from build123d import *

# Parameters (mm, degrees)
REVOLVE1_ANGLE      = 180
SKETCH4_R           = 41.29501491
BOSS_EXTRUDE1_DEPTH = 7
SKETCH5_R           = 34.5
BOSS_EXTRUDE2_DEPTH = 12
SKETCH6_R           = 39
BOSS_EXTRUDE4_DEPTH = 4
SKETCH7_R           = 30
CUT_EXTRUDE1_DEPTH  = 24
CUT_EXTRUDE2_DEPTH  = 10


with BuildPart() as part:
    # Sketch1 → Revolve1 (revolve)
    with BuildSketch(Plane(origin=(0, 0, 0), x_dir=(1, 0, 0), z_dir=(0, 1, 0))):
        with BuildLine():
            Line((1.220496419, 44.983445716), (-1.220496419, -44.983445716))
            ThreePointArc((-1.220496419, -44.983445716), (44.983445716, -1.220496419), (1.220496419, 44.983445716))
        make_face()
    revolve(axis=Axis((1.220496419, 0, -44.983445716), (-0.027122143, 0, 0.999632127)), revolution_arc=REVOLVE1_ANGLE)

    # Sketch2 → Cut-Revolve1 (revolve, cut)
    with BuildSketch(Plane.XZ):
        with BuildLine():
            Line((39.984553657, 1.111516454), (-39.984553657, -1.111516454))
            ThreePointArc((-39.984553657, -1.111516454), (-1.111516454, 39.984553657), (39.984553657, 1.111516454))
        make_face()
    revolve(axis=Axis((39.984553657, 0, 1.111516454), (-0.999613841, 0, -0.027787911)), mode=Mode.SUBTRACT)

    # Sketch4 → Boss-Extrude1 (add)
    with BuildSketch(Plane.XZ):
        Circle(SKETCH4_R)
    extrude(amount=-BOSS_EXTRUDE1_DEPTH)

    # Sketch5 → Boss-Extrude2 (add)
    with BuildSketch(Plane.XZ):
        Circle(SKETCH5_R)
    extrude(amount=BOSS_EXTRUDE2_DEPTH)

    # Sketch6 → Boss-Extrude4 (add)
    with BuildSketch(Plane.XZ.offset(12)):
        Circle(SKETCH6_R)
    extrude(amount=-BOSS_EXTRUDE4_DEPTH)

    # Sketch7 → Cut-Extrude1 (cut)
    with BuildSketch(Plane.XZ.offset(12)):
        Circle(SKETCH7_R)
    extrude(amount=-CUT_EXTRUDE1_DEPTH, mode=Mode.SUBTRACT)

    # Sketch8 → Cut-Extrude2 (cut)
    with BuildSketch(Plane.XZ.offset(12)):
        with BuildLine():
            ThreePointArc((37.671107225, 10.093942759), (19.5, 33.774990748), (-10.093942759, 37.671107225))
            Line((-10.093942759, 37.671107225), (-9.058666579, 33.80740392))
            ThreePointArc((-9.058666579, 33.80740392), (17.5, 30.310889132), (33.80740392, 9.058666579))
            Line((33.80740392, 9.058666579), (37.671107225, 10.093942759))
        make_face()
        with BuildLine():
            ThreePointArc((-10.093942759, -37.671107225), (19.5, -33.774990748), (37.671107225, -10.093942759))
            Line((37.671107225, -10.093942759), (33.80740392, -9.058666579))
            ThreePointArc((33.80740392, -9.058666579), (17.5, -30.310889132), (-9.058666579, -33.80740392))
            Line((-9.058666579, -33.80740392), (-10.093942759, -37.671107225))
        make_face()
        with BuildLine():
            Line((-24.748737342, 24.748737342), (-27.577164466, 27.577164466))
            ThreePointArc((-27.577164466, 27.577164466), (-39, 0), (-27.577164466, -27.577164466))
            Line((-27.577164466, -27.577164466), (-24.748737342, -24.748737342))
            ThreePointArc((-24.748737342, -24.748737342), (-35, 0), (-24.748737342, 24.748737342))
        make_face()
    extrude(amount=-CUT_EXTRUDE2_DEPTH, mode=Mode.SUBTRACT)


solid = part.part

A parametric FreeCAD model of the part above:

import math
import FreeCAD as App
import Part
import Sketcher
Q = App.Units.Quantity

doc = App.newDocument("Part")
body = doc.addObject("PartDesign::Body", "Body")

sketch1 = body.newObject("Sketcher::SketchObject", "Sketch")
sketch1.AttachmentSupport = (doc.getObject("XZ_Plane"), [""])
sketch1.MapMode = "FlatFace"
sketch1.addGeometry(Part.LineSegment(App.Vector(1, -45, 0), App.Vector(-1, 45, 0)), False)
sketch1.addGeometry(Part.ArcOfCircle(Part.Circle(App.Vector(0, 0, 0), App.Vector(0, 0, 1), 45), math.radians(-88), math.radians(92)), False)
sketch1.addGeometry(Part.LineSegment(App.Vector(1, -45, 0), App.Vector(-1, 45, 0)), True)
sketch1.addConstraint(Sketcher.Constraint("Coincident", 0, 1, 1, 1))
sketch1.addConstraint(Sketcher.Constraint("Coincident", 1, 2, 0, 2))
sketch1.addConstraint(Sketcher.Constraint("Coincident", 1, 3, -1, 1))
sketch1.addConstraint(Sketcher.Constraint("Coincident", 2, 1, 0, 1))
sketch1.addConstraint(Sketcher.Constraint("Coincident", 2, 2, 1, 2))
sketch1.addConstraint(Sketcher.Constraint("Radius", 1, Q("45 mm")))
sketch1.addConstraint(Sketcher.Constraint("DistanceY", 0, 1, 1, 2, Q("89.966891 mm")))
sketch1.addConstraint(Sketcher.Constraint("DistanceX", -1, 1, 0, 1, Q("1.220496 mm")))
revolution = body.newObject("PartDesign::Revolution", "Revolution")
revolution.Profile = sketch1
revolution.ReferenceAxis = (sketch1, ["Axis0"])
revolution.Angle = 180

sketch2 = body.newObject("Sketcher::SketchObject", "Sketch001")
sketch2.AttachmentSupport = (doc.getObject("XZ_Plane"), [""])
sketch2.MapMode = "FlatFace"
sketch2.addGeometry(Part.LineSegment(App.Vector(-40, -1, 0), App.Vector(40, 1, 0)), False)
sketch2.addGeometry(Part.ArcOfCircle(Part.Circle(App.Vector(0, 0, 0), App.Vector(0, 0, 1), 40), math.radians(2), math.radians(182)), False)
sketch2.addGeometry(Part.LineSegment(App.Vector(40, 1, 0), App.Vector(-40, -1, 0)), True)
sketch2.addConstraint(Sketcher.Constraint("Coincident", 0, 1, 1, 2))
sketch2.addConstraint(Sketcher.Constraint("Coincident", 1, 1, 0, 2))
sketch2.addConstraint(Sketcher.Constraint("Coincident", 1, 3, -1, 1))
sketch2.addConstraint(Sketcher.Constraint("Coincident", 2, 1, 1, 1))
sketch2.addConstraint(Sketcher.Constraint("Coincident", 2, 2, 0, 1))
sketch2.addConstraint(Sketcher.Constraint("Radius", 1, Q("40 mm")))
sketch2.addConstraint(Sketcher.Constraint("DistanceX", 0, 1, -1, 1, Q("39.984554 mm")))
sketch2.addConstraint(Sketcher.Constraint("DistanceX", -1, 1, 1, 1, Q("39.984554 mm")))
groove = body.newObject("PartDesign::Groove", "Groove")
groove.Profile = sketch2
groove.ReferenceAxis = (sketch2, ["Axis0"])
groove.Angle = 360

sketch3 = body.newObject("Sketcher::SketchObject", "Sketch002")
sketch3.AttachmentSupport = (doc.getObject("XZ_Plane"), [""])
sketch3.MapMode = "FlatFace"
sketch3.addGeometry(Part.Circle(App.Vector(0, 0, 0), App.Vector(0, 0, 1), 41), False)
sketch3.addConstraint(Sketcher.Constraint("Coincident", 0, 3, -1, 1))
sketch3.addConstraint(Sketcher.Constraint("Diameter", 0, Q("82.59003 mm")))
pad1 = body.newObject("PartDesign::Pad", "Pad")
pad1.Profile = sketch3
pad1.Length = 7
pad1.Reversed = True

sketch4 = body.newObject("Sketcher::SketchObject", "Sketch003")
sketch4.AttachmentSupport = (doc.getObject("XZ_Plane"), [""])
sketch4.MapMode = "FlatFace"
sketch4.addGeometry(Part.Circle(App.Vector(0, 0, 0), App.Vector(0, 0, 1), 34), False)
sketch4.addConstraint(Sketcher.Constraint("Coincident", 0, 3, -1, 1))
sketch4.addConstraint(Sketcher.Constraint("Diameter", 0, Q("69 mm")))
pad2 = body.newObject("PartDesign::Pad", "Pad001")
pad2.Profile = sketch4
pad2.Length = 12

sketch5 = body.newObject("Sketcher::SketchObject", "Sketch004")
sketch5.AttachmentSupport = (doc.getObject("XZ_Plane"), [""])
sketch5.MapMode = "FlatFace"
sketch5.AttachmentOffset = App.Placement(App.Vector(0, 0, 12), App.Rotation())
sketch5.addGeometry(Part.Circle(App.Vector(0, 0, 0), App.Vector(0, 0, 1), 39), False)
sketch5.addConstraint(Sketcher.Constraint("Coincident", 0, 3, -1, 1))
sketch5.addConstraint(Sketcher.Constraint("Diameter", 0, Q("78 mm")))
pad3 = body.newObject("PartDesign::Pad", "Pad002")
pad3.Profile = sketch5
pad3.Length = 4
pad3.Reversed = True

sketch6 = body.newObject("Sketcher::SketchObject", "Sketch005")
sketch6.AttachmentSupport = (doc.getObject("XZ_Plane"), [""])
sketch6.MapMode = "FlatFace"
sketch6.AttachmentOffset = App.Placement(App.Vector(0, 0, 12), App.Rotation())
sketch6.addGeometry(Part.Circle(App.Vector(0, 0, 0), App.Vector(0, 0, 1), 30), False)
sketch6.addConstraint(Sketcher.Constraint("Coincident", 0, 3, -1, 1))
sketch6.addConstraint(Sketcher.Constraint("Diameter", 0, Q("60 mm")))
pocket1 = body.newObject("PartDesign::Pocket", "Pocket")
pocket1.Profile = sketch6
pocket1.Length = 24

sketch7 = body.newObject("Sketcher::SketchObject", "Sketch006")
sketch7.AttachmentSupport = (doc.getObject("XZ_Plane"), [""])
sketch7.MapMode = "FlatFace"
sketch7.AttachmentOffset = App.Placement(App.Vector(0, 0, 12), App.Rotation())
sketch7.addGeometry(Part.ArcOfCircle(Part.Circle(App.Vector(0, 0, 0), App.Vector(0, 0, 1), 39), math.radians(15), math.radians(105)), False)
sketch7.addGeometry(Part.LineSegment(App.Vector(-10.1, 37.7, 0), App.Vector(-9.1, 33.8, 0)), False)
sketch7.addGeometry(Part.ArcOfCircle(Part.Circle(App.Vector(0, 0, 0), App.Vector(0, 0, 1), 35), math.radians(15), math.radians(105)), False)
sketch7.addGeometry(Part.LineSegment(App.Vector(33.8, 9.1, 0), App.Vector(37.7, 10.1, 0)), False)
sketch7.addGeometry(Part.ArcOfCircle(Part.Circle(App.Vector(0, 0, 0), App.Vector(0, 0, 1), 39), math.radians(-105), math.radians(-15)), False)
sketch7.addGeometry(Part.LineSegment(App.Vector(37.7, -10.1, 0), App.Vector(33.8, -9.1, 0)), False)
sketch7.addGeometry(Part.ArcOfCircle(Part.Circle(App.Vector(0, 0, 0), App.Vector(0, 0, 1), 35), math.radians(-105), math.radians(-15)), False)
sketch7.addGeometry(Part.LineSegment(App.Vector(-9.1, -33.8, 0), App.Vector(-10.1, -37.7, 0)), False)
sketch7.addGeometry(Part.LineSegment(App.Vector(-24.7, 24.7, 0), App.Vector(-27.6, 27.6, 0)), False)
sketch7.addGeometry(Part.ArcOfCircle(Part.Circle(App.Vector(0, 0, 0), App.Vector(0, 0, 1), 39), math.radians(135), math.radians(225)), False)
sketch7.addGeometry(Part.LineSegment(App.Vector(-27.6, -27.6, 0), App.Vector(-24.7, -24.7, 0)), False)
sketch7.addGeometry(Part.ArcOfCircle(Part.Circle(App.Vector(0, 0, 0), App.Vector(0, 0, 1), 35), math.radians(135), math.radians(225)), False)
sketch7.addConstraint(Sketcher.Constraint("Coincident", 0, 2, 1, 1))
sketch7.addConstraint(Sketcher.Constraint("Coincident", 1, 2, 2, 2))
sketch7.addConstraint(Sketcher.Constraint("Coincident", 2, 1, 3, 1))
sketch7.addConstraint(Sketcher.Constraint("Coincident", 3, 2, 0, 1))
sketch7.addConstraint(Sketcher.Constraint("Coincident", 4, 2, 5, 1))
sketch7.addConstraint(Sketcher.Constraint("Coincident", 5, 2, 6, 2))
sketch7.addConstraint(Sketcher.Constraint("Coincident", 6, 1, 7, 1))
sketch7.addConstraint(Sketcher.Constraint("Coincident", 7, 2, 4, 1))
sketch7.addConstraint(Sketcher.Constraint("Coincident", 8, 2, 9, 1))
sketch7.addConstraint(Sketcher.Constraint("Coincident", 9, 2, 10, 1))
sketch7.addConstraint(Sketcher.Constraint("Coincident", 10, 2, 11, 2))
sketch7.addConstraint(Sketcher.Constraint("Coincident", 11, 1, 8, 1))
sketch7.addConstraint(Sketcher.Constraint("Coincident", 0, 3, -1, 1))
sketch7.addConstraint(Sketcher.Constraint("Coincident", 2, 3, -1, 1))
sketch7.addConstraint(Sketcher.Constraint("Coincident", 4, 3, -1, 1))
sketch7.addConstraint(Sketcher.Constraint("Coincident", 6, 3, -1, 1))
sketch7.addConstraint(Sketcher.Constraint("Coincident", 9, 3, -1, 1))
sketch7.addConstraint(Sketcher.Constraint("Coincident", 11, 3, -1, 1))
sketch7.addConstraint(Sketcher.Constraint("Equal", 0, 4))
sketch7.addConstraint(Sketcher.Constraint("Equal", 2, 6))
sketch7.addConstraint(Sketcher.Constraint("Equal", 4, 9))
sketch7.addConstraint(Sketcher.Constraint("Equal", 6, 11))
sketch7.addConstraint(Sketcher.Constraint("Perpendicular", 1, 3))
sketch7.addConstraint(Sketcher.Constraint("Perpendicular", 5, 7))
sketch7.addConstraint(Sketcher.Constraint("Perpendicular", 8, 10))
sketch7.addConstraint(Sketcher.Constraint("Vertical", 3, 2, 4, 2))
sketch7.addConstraint(Sketcher.Constraint("Vertical", 2, 1, 5, 2))
sketch7.addConstraint(Sketcher.Constraint("Vertical", 1, 2, 6, 1))
sketch7.addConstraint(Sketcher.Constraint("Vertical", 8, 2, 9, 2))
sketch7.addConstraint(Sketcher.Constraint("Vertical", 10, 2, 11, 1))
sketch7.addConstraint(Sketcher.Constraint("Radius", 0, Q("39 mm")))
sketch7.addConstraint(Sketcher.Constraint("Radius", 2, Q("35 mm")))
sketch7.addConstraint(Sketcher.Constraint("Angle", 1, Q("-75 deg")))
sketch7.addConstraint(Sketcher.Constraint("DistanceY", 4, 2, 2, 1, Q("19.152609 mm")))
sketch7.addConstraint(Sketcher.Constraint("DistanceY", 8, 2, 1, 2, Q("6.230239 mm")))
sketch7.addConstraint(Sketcher.Constraint("DistanceX", 8, 2, 0, 2, Q("17.483222 mm")))
pocket2 = body.newObject("PartDesign::Pocket", "Pocket001")
pocket2.Profile = sketch7
pocket2.Length = 10

doc.recompute()
